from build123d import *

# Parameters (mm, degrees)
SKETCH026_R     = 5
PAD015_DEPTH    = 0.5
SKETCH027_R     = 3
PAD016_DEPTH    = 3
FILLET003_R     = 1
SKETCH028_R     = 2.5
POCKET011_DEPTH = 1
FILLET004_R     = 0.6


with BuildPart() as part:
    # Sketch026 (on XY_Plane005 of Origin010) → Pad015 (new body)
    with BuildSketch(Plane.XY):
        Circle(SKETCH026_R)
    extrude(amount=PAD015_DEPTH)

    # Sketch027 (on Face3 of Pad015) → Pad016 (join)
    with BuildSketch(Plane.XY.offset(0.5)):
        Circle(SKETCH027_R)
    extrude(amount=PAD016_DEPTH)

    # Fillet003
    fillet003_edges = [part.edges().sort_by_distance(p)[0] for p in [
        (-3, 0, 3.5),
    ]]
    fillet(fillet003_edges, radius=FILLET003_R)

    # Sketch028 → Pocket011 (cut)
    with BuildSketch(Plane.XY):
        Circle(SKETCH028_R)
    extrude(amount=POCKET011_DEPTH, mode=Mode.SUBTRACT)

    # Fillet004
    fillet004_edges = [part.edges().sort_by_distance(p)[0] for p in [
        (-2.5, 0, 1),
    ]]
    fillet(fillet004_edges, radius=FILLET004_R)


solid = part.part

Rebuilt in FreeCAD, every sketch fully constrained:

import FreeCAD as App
import Part
import Sketcher
from FreeCAD import Vector


def edges_at(feature, points):
    """Names of the edges that pass closest to the given points."""
    edges = feature.Shape.Edges
    near = lambda p: min(range(len(edges)), key=lambda i: edges[i].distToShape(Part.Vertex(*p))[0])
    return sorted({f"Edge{near(p) + 1}" for p in points})

doc = App.newDocument("Part")
params = doc.addObject("Spreadsheet::Sheet", "Params")
for row, (alias, value) in enumerate([
    ("sketch1_diameter", "10 mm"),
    ("pad1_length", "0.5 mm"),
    ("sketch2_diameter", "6 mm"),
    ("pad2_length", "3 mm"),
    ("fillet_radius", "1 mm"),
    ("sketch3_diameter", "5 mm"),
    ("pocket1_length", "1 mm"),
    ("fillet2_radius", "0.6 mm"),
], start=1):
    params.set(f"A{row}", alias)
    params.set(f"B{row}", "=" + value)
    params.setAlias(f"B{row}", alias)

body = doc.addObject("PartDesign::Body", "Body")

sketch1 = body.newObject("Sketcher::SketchObject", "Sketch")
sketch1.AttachmentSupport = (doc.getObject("XY_Plane"), [""])
sketch1.MapMode = "FlatFace"
sketch1.addGeometry(Part.Circle(Vector(0, 0, 0), Vector(0, 0, 1), 5), False)
sketch1.addConstraint(Sketcher.Constraint("Coincident", 0, 3, -1, 1))
sketch1.addConstraint(Sketcher.Constraint("Diameter", 0, 10.0))
sketch1.setExpression("Constraints[1]", "Params.sketch1_diameter")
pad1 = body.newObject("PartDesign::Pad", "Pad")
pad1.Profile = sketch1
pad1.setExpression("Length", "Params.pad1_length")

sketch2 = body.newObject("Sketcher::SketchObject", "Sketch001")
sketch2.AttachmentSupport = (doc.getObject("XY_Plane"), [""])
sketch2.MapMode = "FlatFace"
sketch2.AttachmentOffset = App.Placement(Vector(0, 0, 0.5), App.Rotation())
sketch2.addGeometry(Part.Circle(Vector(0, 0, 0), Vector(0, 0, 1), 3), False)
sketch2.addConstraint(Sketcher.Constraint("Coincident", 0, 3, -1, 1))
sketch2.addConstraint(Sketcher.Constraint("Diameter", 0, 6.0))
sketch2.setExpression("Constraints[1]", "Params.sketch2_diameter")
pad2 = body.newObject("PartDesign::Pad", "Pad001")
pad2.Profile = sketch2
pad2.setExpression("Length", "Params.pad2_length")
doc.recompute()

fillet = body.newObject("PartDesign::Fillet", "Fillet")
fillet.Base = (pad2, edges_at(pad2, [(-3, 0, 3.5)]))
fillet.setExpression("Radius", "Params.fillet_radius")

sketch3 = body.newObject("Sketcher::SketchObject", "Sketch002")
sketch3.AttachmentSupport = (doc.getObject("XY_Plane"), [""])
sketch3.MapMode = "FlatFace"
sketch3.addGeometry(Part.Circle(Vector(0, 0, 0), Vector(0, 0, 1), 2.5), False)
sketch3.addConstraint(Sketcher.Constraint("Coincident", 0, 3, -1, 1))
sketch3.addConstraint(Sketcher.Constraint("Diameter", 0, 5.0))
sketch3.setExpression("Constraints[1]", "Params.sketch3_diameter")
pocket1 = body.newObject("PartDesign::Pocket", "Pocket")
pocket1.Profile = sketch3
pocket1.setExpression("Length", "Params.pocket1_length")
pocket1.Reversed = True
doc.recompute()

fillet2 = body.newObject("PartDesign::Fillet", "Fillet001")
fillet2.Base = (pocket1, edges_at(pocket1, [(-2.5, 0, 1)]))
fillet2.setExpression("Radius", "Params.fillet2_radius")

doc.recompute()
